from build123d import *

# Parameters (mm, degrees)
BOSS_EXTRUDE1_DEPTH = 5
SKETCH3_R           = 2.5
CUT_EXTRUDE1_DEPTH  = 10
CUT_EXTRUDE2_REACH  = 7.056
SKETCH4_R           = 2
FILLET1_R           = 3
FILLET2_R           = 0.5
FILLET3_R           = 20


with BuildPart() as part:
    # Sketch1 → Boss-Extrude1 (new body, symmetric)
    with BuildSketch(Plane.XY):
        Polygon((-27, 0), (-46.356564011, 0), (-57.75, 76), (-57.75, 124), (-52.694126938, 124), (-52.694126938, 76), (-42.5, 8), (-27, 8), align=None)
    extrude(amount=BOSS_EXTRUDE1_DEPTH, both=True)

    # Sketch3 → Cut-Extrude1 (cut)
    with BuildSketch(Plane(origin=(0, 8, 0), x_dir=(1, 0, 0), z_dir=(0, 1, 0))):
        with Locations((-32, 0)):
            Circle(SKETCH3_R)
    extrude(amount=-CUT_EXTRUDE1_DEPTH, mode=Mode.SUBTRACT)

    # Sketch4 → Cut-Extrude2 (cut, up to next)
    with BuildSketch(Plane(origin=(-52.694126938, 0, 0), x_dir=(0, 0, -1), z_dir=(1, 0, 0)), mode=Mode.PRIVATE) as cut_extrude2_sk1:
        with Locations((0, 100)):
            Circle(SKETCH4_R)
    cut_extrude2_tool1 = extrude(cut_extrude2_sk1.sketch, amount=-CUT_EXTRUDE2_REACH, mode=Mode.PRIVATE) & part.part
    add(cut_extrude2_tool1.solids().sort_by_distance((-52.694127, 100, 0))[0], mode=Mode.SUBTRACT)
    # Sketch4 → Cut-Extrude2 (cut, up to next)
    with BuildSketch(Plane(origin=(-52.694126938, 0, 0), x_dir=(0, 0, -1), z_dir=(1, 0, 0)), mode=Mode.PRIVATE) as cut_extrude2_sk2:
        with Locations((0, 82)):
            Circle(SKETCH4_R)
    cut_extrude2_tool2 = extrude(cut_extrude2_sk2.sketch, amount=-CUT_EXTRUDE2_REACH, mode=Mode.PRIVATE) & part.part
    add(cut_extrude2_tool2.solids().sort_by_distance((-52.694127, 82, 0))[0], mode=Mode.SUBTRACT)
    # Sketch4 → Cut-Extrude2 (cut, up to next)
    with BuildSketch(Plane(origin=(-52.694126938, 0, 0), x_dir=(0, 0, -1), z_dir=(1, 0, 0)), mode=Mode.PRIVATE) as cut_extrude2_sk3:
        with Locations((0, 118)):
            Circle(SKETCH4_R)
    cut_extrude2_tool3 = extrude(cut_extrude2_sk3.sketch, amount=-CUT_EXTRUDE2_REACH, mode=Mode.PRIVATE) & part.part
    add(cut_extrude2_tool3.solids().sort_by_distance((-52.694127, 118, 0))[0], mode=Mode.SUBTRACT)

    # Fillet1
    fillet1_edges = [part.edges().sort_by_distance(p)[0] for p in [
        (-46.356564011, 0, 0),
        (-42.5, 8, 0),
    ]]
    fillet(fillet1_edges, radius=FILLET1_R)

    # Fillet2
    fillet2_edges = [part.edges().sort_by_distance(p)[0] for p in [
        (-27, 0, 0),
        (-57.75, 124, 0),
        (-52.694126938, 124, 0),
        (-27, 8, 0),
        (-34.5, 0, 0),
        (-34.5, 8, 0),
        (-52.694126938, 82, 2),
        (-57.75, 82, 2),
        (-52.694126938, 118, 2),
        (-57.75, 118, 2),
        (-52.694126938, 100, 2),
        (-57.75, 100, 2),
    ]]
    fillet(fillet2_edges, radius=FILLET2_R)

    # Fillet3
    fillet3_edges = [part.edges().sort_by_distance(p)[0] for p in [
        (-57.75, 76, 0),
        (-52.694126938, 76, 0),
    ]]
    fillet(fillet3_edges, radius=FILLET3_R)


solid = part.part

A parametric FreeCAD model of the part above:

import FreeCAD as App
import Part
import Sketcher
from FreeCAD import Vector
Q = App.Units.Quantity


def edges_at(feature, points):
    """Names of the edges that pass closest to the given points."""
    edges = feature.Shape.Edges
    near = lambda p: min(range(len(edges)), key=lambda i: edges[i].distToShape(Part.Vertex(*p))[0])
    return sorted({f"Edge{near(p) + 1}" for p in points})


def add_polygon(sketch, points):
    """Adds a closed chain of lines whose ends are joined by coincident constraints."""
    first, n = sketch.GeometryCount, len(points)
    for a, b in zip(points, points[1:] + points[:1]):
        sketch.addGeometry(Part.LineSegment(App.Vector(*a, 0), App.Vector(*b, 0)), False)
    for i in range(n):
        sketch.addConstraint(Sketcher.Constraint("Coincident", first + i, 2, first + (i + 1) % n, 1))

doc = App.newDocument("Part")
body = doc.addObject("PartDesign::Body", "Body")

# Sketch on XY plane
sketch1 = doc.addObject("Sketcher::SketchObject", "Sketch")
body.addObject(sketch1)
sketch1.AttachmentSupport = (doc.XY_Plane, [""])
sketch1.MapMode = "FlatFace"
add_polygon(sketch1, [(-46, 0), (-27, 0), (-27, 8), (-42, 8), (-53, 76), (-53, 124), (-58, 124), (-58, 76)])  # lines 0-7
sketch1.addConstraint([
    Sketcher.Constraint("Horizontal", 0),
    Sketcher.Constraint("Vertical", 1),
    Sketcher.Constraint("Horizontal", 2),
    Sketcher.Constraint("Vertical", 4),
    Sketcher.Constraint("Horizontal", 5),
    Sketcher.Constraint("Vertical", 6),
    Sketcher.Constraint("PointOnObject", 0, 2, -1),
    Sketcher.Constraint("Parallel", 3, 7),
    Sketcher.Constraint("Horizontal", 3, 2, 6, 2),
    Sketcher.Constraint("DistanceY", 1, 1, 1, 2, Q("8 mm")),
    Sketcher.Constraint("DistanceY", 4, 1, 4, 2, Q("48 mm")),
    Sketcher.Constraint("DistanceX", 2, 2, 2, 1, Q("15.5 mm")),
    Sketcher.Constraint("DistanceX", 0, 2, -1, 1, Q("27 mm")),
    Sketcher.Constraint("DistanceY", -1, 1, 3, 2, Q("76 mm")),
    Sketcher.Constraint("DistanceX", 5, 2, -1, 1, Q("57.75 mm")),
    Sketcher.Constraint("Distance", 7, Q("76.849271 mm")),
])
pad1 = doc.addObject("PartDesign::Pad", "Pad")
body.addObject(pad1)
pad1.Profile = sketch1
pad1.Length = 10
pad1.Midplane = True

# Sketch on XZ plane
sketch2 = doc.addObject("Sketcher::SketchObject", "Sketch001")
body.addObject(sketch2)
sketch2.AttachmentSupport = (doc.XZ_Plane, [""])
sketch2.MapMode = "FlatFace"
sketch2.AttachmentOffset = App.Placement(Vector(0, 0, -8), App.Rotation())
sketch2.addGeometry(Part.Circle(Vector(-32, 0, 0), Vector(0, 0, 1), 2.5), False)
sketch2.addConstraint([
    Sketcher.Constraint("PointOnObject", 0, 3, -1),
    Sketcher.Constraint("Diameter", 0, Q("5 mm")),
    Sketcher.Constraint("DistanceX", 0, 3, -1, 1, Q("32 mm")),
])
pocket1 = doc.addObject("PartDesign::Pocket", "Pocket")
body.addObject(pocket1)
pocket1.Profile = sketch2
pocket1.Length = 10
pocket1.Reversed = True

# Sketch on YZ plane
sketch3 = doc.addObject("Sketcher::SketchObject", "Sketch002")
body.addObject(sketch3)
sketch3.AttachmentSupport = (doc.YZ_Plane, [""])
sketch3.MapMode = "FlatFace"
sketch3.AttachmentOffset = App.Placement(Vector(0, 0, -52.694127), App.Rotation())
sketch3.addGeometry(Part.Circle(Vector(100, 0, 0), Vector(0, 0, 1), 2), False)
sketch3.addConstraint([
    Sketcher.Constraint("PointOnObject", 0, 3, -1),
    Sketcher.Constraint("Diameter", 0, Q("4 mm")),
    Sketcher.Constraint("DistanceX", -1, 1, 0, 3, Q("100 mm")),
])
pocket2 = doc.addObject("PartDesign::Pocket", "Pocket001")
body.addObject(pocket2)
pocket2.Profile = sketch3
pocket2.Type = "UpToFirst"

# Sketch on YZ plane
sketch4 = doc.addObject("Sketcher::SketchObject", "Sketch003")
body.addObject(sketch4)
sketch4.AttachmentSupport = (doc.YZ_Plane, [""])
sketch4.MapMode = "FlatFace"
sketch4.AttachmentOffset = App.Placement(Vector(0, 0, -52.694127), App.Rotation())
sketch4.addGeometry(Part.Circle(Vector(82, 0, 0), Vector(0, 0, 1), 2), False)
sketch4.addConstraint([
    Sketcher.Constraint("PointOnObject", 0, 3, -1),
    Sketcher.Constraint("Diameter", 0, Q("4 mm")),
    Sketcher.Constraint("DistanceX", -1, 1, 0, 3, Q("82 mm")),
])
pocket3 = doc.addObject("PartDesign::Pocket", "Pocket002")
body.addObject(pocket3)
pocket3.Profile = sketch4
pocket3.Type = "UpToFirst"

# Sketch on YZ plane
sketch5 = doc.addObject("Sketcher::SketchObject", "Sketch004")
body.addObject(sketch5)
sketch5.AttachmentSupport = (doc.YZ_Plane, [""])
sketch5.MapMode = "FlatFace"
sketch5.AttachmentOffset = App.Placement(Vector(0, 0, -52.694127), App.Rotation())
sketch5.addGeometry(Part.Circle(Vector(118, 0, 0), Vector(0, 0, 1), 2), False)
sketch5.addConstraint([
    Sketcher.Constraint("PointOnObject", 0, 3, -1),
    Sketcher.Constraint("Diameter", 0, Q("4 mm")),
    Sketcher.Constraint("DistanceX", -1, 1, 0, 3, Q("118 mm")),
])
pocket4 = doc.addObject("PartDesign::Pocket", "Pocket003")
body.addObject(pocket4)
pocket4.Profile = sketch5
pocket4.Type = "UpToFirst"
doc.recompute()

fillet = doc.addObject("PartDesign::Fillet", "Fillet")
body.addObject(fillet)
fillet.Base = (pocket4, edges_at(pocket4, [(-46.357, 0, 0), (-42.5, 8, 0)]))
fillet.Radius = 3
doc.recompute()

fillet2 = doc.addObject("PartDesign::Fillet", "Fillet001")
body.addObject(fillet2)
fillet2.Base = (fillet, edges_at(fillet, [
    (-27, 0, 0),
    (-57.75, 124, 0),
    (-52.694, 124, 0),
    (-27, 8, 0),
    (-34.5, 0, 0),
    (-34.5, 8, 0),
    (-52.694, 82, 2),
    (-57.75, 82, 2),
    (-52.694, 118, 2),
    (-57.75, 118, 2),
    (-52.694, 100, 2),
    (-57.75, 100, 2),
]))
fillet2.Radius = 0.5
doc.recompute()

fillet3 = doc.addObject("PartDesign::Fillet", "Fillet002")
body.addObject(fillet3)
fillet3.Base = (fillet2, edges_at(fillet2, [(-57.75, 76, 0), (-52.694, 76, 0)]))
fillet3.Radius = 20

doc.recompute()
